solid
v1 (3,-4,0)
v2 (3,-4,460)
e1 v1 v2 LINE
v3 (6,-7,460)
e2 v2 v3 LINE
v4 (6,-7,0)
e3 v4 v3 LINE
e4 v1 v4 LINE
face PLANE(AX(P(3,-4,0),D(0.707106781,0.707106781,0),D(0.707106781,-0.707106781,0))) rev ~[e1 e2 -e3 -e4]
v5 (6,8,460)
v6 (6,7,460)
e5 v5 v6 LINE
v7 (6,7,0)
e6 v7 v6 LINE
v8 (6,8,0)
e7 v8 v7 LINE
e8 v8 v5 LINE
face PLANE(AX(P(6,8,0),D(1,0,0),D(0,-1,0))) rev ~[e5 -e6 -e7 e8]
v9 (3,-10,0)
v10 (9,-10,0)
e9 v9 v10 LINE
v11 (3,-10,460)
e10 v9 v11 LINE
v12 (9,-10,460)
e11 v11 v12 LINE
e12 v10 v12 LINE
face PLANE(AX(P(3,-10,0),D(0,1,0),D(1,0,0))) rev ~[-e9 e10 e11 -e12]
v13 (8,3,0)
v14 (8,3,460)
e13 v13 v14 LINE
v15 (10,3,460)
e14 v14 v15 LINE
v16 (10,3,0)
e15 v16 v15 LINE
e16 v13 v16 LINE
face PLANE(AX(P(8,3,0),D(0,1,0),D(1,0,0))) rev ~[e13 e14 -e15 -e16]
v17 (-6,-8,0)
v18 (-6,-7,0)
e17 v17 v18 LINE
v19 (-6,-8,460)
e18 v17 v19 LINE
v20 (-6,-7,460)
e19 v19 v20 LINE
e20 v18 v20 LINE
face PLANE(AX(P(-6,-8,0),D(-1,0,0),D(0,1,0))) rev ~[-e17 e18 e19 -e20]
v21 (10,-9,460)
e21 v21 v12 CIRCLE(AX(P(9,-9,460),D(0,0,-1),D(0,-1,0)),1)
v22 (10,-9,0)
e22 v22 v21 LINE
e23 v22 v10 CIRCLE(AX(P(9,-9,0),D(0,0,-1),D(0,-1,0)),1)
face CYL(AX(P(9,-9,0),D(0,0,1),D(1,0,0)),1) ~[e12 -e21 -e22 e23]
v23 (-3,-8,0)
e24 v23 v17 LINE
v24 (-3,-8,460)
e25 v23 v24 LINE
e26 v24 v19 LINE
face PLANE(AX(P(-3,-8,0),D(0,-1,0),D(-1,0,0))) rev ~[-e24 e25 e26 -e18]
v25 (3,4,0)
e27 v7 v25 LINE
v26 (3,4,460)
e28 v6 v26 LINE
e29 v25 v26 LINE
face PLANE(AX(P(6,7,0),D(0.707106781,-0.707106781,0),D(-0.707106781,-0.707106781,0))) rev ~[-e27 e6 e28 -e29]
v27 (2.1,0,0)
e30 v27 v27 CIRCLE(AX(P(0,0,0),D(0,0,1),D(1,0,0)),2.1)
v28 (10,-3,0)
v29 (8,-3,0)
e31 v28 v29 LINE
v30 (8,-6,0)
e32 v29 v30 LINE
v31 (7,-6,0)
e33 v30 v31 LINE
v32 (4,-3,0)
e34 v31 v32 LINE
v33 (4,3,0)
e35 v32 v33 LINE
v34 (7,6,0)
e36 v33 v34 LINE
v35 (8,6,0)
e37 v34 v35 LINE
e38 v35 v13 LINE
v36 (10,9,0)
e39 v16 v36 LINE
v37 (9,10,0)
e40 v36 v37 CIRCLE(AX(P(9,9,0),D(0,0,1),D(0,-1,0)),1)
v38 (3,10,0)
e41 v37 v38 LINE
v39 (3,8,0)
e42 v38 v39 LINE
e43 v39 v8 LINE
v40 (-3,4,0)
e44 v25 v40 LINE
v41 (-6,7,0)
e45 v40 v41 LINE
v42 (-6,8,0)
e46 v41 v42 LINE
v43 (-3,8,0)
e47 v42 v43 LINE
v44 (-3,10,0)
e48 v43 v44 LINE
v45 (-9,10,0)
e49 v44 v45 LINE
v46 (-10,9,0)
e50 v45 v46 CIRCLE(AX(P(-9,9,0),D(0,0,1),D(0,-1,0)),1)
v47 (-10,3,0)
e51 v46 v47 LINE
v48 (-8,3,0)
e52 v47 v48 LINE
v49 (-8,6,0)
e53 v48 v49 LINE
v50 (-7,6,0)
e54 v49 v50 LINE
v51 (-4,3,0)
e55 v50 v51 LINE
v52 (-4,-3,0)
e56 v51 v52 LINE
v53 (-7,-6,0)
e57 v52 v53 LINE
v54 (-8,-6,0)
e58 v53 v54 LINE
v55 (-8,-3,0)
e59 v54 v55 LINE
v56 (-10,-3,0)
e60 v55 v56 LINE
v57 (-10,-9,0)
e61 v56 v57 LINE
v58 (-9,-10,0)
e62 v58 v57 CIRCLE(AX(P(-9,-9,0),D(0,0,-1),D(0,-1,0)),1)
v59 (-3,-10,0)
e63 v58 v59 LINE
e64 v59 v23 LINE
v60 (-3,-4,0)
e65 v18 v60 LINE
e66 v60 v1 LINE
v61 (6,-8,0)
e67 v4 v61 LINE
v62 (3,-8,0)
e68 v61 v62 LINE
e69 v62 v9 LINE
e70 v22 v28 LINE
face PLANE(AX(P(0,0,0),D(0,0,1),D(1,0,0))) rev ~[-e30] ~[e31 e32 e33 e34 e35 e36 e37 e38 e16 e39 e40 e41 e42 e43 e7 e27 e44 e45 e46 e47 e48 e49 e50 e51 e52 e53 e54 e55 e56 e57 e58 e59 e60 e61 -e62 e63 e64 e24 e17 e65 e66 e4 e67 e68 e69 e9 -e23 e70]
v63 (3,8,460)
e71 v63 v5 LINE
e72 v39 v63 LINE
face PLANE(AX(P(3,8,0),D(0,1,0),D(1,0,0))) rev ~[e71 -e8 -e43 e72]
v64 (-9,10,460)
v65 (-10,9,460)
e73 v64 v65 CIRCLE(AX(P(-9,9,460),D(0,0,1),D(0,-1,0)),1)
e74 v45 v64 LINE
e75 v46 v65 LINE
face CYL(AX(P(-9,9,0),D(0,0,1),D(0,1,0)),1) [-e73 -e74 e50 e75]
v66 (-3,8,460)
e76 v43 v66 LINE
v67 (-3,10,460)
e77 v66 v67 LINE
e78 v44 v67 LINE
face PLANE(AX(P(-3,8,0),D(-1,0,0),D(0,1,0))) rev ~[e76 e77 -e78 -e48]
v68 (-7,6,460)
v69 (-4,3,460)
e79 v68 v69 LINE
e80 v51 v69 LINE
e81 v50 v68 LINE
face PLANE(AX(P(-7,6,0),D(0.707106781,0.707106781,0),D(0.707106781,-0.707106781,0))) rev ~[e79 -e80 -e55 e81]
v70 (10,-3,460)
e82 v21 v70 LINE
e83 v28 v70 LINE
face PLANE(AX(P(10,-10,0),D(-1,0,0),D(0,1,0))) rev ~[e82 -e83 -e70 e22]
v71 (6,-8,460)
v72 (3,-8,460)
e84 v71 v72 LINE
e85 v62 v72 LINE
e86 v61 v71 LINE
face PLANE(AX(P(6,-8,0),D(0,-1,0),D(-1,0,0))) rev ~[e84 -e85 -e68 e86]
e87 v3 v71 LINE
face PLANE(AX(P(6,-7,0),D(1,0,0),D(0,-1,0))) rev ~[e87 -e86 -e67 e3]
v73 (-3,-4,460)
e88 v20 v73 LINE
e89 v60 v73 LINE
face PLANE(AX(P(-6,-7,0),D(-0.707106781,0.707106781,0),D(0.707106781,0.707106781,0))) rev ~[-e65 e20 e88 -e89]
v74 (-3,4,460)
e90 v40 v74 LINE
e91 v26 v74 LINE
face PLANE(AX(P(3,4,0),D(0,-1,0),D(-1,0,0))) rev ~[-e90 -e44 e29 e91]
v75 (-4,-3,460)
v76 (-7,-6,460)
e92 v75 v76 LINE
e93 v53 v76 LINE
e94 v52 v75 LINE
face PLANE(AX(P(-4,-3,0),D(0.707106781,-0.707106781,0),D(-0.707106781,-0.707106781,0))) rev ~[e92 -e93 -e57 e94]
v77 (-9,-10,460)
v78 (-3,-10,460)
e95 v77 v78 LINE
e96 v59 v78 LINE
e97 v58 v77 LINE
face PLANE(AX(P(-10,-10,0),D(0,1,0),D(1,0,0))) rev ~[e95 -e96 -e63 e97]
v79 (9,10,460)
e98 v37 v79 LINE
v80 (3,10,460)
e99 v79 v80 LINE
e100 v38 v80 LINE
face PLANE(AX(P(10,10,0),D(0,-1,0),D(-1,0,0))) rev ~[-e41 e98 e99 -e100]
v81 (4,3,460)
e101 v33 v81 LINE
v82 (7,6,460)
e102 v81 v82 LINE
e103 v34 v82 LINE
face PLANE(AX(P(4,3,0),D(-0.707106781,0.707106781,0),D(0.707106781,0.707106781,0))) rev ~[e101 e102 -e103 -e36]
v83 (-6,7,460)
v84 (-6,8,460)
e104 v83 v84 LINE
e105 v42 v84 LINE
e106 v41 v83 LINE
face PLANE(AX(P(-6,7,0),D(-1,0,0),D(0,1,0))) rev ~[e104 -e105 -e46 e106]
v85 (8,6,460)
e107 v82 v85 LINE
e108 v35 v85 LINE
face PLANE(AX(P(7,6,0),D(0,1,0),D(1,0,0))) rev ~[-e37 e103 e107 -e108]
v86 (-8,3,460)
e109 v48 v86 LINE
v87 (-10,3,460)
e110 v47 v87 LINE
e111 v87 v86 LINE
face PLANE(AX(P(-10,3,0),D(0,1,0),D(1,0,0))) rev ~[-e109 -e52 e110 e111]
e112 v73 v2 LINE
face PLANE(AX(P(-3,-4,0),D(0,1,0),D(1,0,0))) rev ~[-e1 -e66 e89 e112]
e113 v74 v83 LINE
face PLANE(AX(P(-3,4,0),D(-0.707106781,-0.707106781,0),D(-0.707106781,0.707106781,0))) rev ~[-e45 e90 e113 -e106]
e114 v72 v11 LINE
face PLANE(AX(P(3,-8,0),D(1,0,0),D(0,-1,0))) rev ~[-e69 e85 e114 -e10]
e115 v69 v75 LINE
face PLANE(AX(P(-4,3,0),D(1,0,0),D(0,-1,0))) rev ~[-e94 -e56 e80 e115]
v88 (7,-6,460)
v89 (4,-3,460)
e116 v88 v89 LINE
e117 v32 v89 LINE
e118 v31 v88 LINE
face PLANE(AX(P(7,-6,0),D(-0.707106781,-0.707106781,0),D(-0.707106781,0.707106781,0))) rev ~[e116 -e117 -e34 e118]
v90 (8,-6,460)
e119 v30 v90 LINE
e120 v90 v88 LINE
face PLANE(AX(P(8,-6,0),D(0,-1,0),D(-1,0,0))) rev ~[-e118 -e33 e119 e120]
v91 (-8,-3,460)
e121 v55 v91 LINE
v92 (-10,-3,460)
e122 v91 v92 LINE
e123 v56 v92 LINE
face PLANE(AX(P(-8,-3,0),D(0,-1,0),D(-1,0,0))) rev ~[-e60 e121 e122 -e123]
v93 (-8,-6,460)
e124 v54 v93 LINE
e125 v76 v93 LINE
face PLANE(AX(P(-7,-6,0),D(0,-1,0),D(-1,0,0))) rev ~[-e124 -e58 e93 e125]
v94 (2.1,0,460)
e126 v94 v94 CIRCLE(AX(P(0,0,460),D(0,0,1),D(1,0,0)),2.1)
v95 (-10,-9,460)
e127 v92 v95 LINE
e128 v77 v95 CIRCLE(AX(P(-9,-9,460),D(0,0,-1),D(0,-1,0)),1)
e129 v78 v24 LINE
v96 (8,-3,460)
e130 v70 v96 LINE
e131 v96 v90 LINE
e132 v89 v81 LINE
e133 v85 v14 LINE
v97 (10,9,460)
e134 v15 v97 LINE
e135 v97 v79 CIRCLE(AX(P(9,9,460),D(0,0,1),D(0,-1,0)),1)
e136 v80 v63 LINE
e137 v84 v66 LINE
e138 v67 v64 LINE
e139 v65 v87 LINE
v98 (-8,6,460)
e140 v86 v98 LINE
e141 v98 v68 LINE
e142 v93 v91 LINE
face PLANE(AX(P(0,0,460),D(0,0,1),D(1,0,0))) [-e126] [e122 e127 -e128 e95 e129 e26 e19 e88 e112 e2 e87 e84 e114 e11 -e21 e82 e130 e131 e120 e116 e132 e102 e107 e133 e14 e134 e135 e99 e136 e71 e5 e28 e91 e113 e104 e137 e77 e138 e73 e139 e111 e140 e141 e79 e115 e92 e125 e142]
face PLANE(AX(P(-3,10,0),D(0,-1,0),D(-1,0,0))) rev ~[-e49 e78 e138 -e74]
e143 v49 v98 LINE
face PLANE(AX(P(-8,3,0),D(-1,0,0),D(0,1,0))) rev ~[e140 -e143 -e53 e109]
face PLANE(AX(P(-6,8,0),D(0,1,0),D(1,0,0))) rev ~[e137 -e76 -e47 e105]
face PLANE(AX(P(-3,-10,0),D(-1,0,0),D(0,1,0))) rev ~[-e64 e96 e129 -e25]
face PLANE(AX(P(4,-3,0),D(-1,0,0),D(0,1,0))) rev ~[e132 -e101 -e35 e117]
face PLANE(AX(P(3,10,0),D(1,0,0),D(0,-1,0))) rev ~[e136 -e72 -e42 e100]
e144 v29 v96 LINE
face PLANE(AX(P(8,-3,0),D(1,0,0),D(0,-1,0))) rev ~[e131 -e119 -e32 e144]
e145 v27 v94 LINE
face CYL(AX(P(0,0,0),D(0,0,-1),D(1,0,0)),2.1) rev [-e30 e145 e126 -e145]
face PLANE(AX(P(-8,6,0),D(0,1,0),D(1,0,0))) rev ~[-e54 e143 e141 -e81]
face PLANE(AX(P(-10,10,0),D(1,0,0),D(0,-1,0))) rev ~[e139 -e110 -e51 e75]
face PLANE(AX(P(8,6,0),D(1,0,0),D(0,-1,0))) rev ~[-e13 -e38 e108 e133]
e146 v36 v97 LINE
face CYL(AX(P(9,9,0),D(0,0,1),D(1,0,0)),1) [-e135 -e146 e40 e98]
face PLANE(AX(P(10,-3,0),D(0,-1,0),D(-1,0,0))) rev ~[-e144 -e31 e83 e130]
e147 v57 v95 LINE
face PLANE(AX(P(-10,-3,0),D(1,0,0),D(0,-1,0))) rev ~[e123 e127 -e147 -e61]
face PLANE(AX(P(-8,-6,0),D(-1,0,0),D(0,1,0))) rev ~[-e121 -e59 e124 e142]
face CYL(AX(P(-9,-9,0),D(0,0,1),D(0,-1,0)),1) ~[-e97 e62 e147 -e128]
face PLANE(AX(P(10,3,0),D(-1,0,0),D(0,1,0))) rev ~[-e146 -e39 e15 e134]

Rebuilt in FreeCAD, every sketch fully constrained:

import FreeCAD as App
import Part
import Sketcher


def edges_at(feature, points):
    """Names of the edges that pass closest to the given points."""
    edges = feature.Shape.Edges
    near = lambda p: min(range(len(edges)), key=lambda i: edges[i].distToShape(Part.Vertex(*p))[0])
    return sorted({f"Edge{near(p) + 1}" for p in points})


def add_polygon(sketch, points):
    """Adds a closed chain of lines whose ends are joined by coincident constraints."""
    first, n = sketch.GeometryCount, len(points)
    for a, b in zip(points, points[1:] + points[:1]):
        sketch.addGeometry(Part.LineSegment(App.Vector(*a, 0), App.Vector(*b, 0)), False)
    for i in range(n):
        sketch.addConstraint(Sketcher.Constraint("Coincident", first + i, 2, first + (i + 1) % n, 1))

doc = App.newDocument("Part")
body = doc.addObject("PartDesign::Body", "Body")

# Sketch on XY plane
sketch1 = doc.addObject("Sketcher::SketchObject", "Sketch")
body.addObject(sketch1)
sketch1.AttachmentSupport = (doc.XY_Plane, [""])
sketch1.MapMode = "FlatFace"
add_polygon(sketch1, [(10, 3), (10, 10), (3, 10), (3, 8), (6, 8), (6, 7), (3, 4), (-3, 4), (-6, 7), (-6, 8), (-3, 8), (-3, 10), (-10, 10), (-10, 3), (-8, 3), (-8, 6), (-7, 6), (-4, 3), (-4, -3), (-7, -6), (-8, -6), (-8, -3), (-10, -3), (-10, -10), (-3, -10), (-3, -8), (-6, -8), (-6, -7), (-3, -4), (3, -4), (6, -7), (6, -8), (3, -8), (3, -10), (10, -10), (10, -3), (8, -3), (8, -6), (7, -6), (4, -3), (4, 3), (7, 6), (8, 6), (8, 3)])  # lines 0-43
sketch1.addGeometry(Part.Circle(App.Vector(0, 0, 0), App.Vector(0, 0, 1), 2.1), False)  # 44
sketch1.addConstraint([
    Sketcher.Constraint("Vertical", 0),
    Sketcher.Constraint("Horizontal", 1),
    Sketcher.Constraint("Vertical", 2),
    Sketcher.Constraint("Horizontal", 3),
    Sketcher.Constraint("Vertical", 4),
    Sketcher.Constraint("Horizontal", 6),
    Sketcher.Constraint("Vertical", 8),
    Sketcher.Constraint("Horizontal", 9),
    Sketcher.Constraint("Vertical", 10),
    Sketcher.Constraint("Horizontal", 11),
    Sketcher.Constraint("Vertical", 12),
    Sketcher.Constraint("Horizontal", 13),
    Sketcher.Constraint("Vertical", 14),
    Sketcher.Constraint("Horizontal", 15),
    Sketcher.Constraint("Vertical", 17),
    Sketcher.Constraint("Horizontal", 19),
    Sketcher.Constraint("Vertical", 20),
    Sketcher.Constraint("Horizontal", 21),
    Sketcher.Constraint("Vertical", 22),
    Sketcher.Constraint("Horizontal", 23),
    Sketcher.Constraint("Vertical", 24),
    Sketcher.Constraint("Horizontal", 25),
    Sketcher.Constraint("Vertical", 26),
    Sketcher.Constraint("Horizontal", 28),
    Sketcher.Constraint("Vertical", 30),
    Sketcher.Constraint("Horizontal", 31),
    Sketcher.Constraint("Vertical", 32),
    Sketcher.Constraint("Horizontal", 33),
    Sketcher.Constraint("Vertical", 34),
    Sketcher.Constraint("Horizontal", 35),
    Sketcher.Constraint("Vertical", 36),
    Sketcher.Constraint("Horizontal", 37),
    Sketcher.Constraint("Vertical", 39),
    Sketcher.Constraint("Horizontal", 41),
    Sketcher.Constraint("Vertical", 42),
    Sketcher.Constraint("Horizontal", 43),
    Sketcher.Constraint("Coincident", 44, 3, -1, 1),
    Sketcher.Constraint("Symmetric", 0, 2, 22, 2, -1, 1),
    Sketcher.Constraint("Symmetric", 2, 2, 24, 2, -1, 1),
    Sketcher.Constraint("Symmetric", 4, 2, 26, 2, -1, 1),
    Sketcher.Constraint("Symmetric", 5, 2, 27, 2, -1, 1),
    Sketcher.Constraint("Symmetric", 7, 2, 29, 2, -1, 1),
    Sketcher.Constraint("Symmetric", 9, 2, 31, 2, -1, 1),
    Sketcher.Constraint("Symmetric", 11, 2, 33, 2, -1, 1),
    Sketcher.Constraint("Symmetric", 13, 2, 35, 2, -1, 1),
    Sketcher.Constraint("Symmetric", 15, 2, 37, 2, -1, 1),
    Sketcher.Constraint("Symmetric", 16, 2, 38, 2, -1, 1),
    Sketcher.Constraint("Symmetric", 18, 2, 40, 2, -1, 1),
    Sketcher.Constraint("Symmetric", 20, 2, 42, 2, -1, 1),
    Sketcher.Constraint("Symmetric", 4, 2, 7, 2, -2),
    Sketcher.Constraint("Symmetric", 2, 2, 9, 2, -2),
    Sketcher.Constraint("Symmetric", 0, 2, 11, 2, -2),
    Sketcher.Constraint("Symmetric", 20, 2, 35, 2, -2),
    Sketcher.Constraint("Symmetric", 18, 2, 37, 2, -2),
    Sketcher.Constraint("Perpendicular", 5, 7),
    Sketcher.Constraint("Parallel", 7, 16),
    Sketcher.Constraint("Perpendicular", 16, 18),
    Sketcher.Constraint("Perpendicular", 27, 29),
    Sketcher.Constraint("Perpendicular", 38, 40),
    Sketcher.Constraint("Horizontal", 13, 2, 16, 2),
    Sketcher.Constraint("Horizontal", 17, 2, 20, 2),
    Sketcher.Constraint("Vertical", 2, 2, 5, 2),
    Sketcher.Constraint("Equal", 33, 0),
    Sketcher.Constraint("Equal", 43, 2),
    Sketcher.Constraint("Equal", 41, 4),
    Sketcher.Constraint("Equal", 31, 14),
    Sketcher.Constraint("Equal", 28, 17),
    Sketcher.Constraint("Diameter", 44, 4.2),
    Sketcher.Constraint("DistanceX", 1, 2, 1, 1, 7.0),
    Sketcher.Constraint("DistanceX", 3, 1, 3, 2, 3.0),
    Sketcher.Constraint("DistanceX", 6, 2, 6, 1, 6.0),
    Sketcher.Constraint("DistanceX", 13, 1, 13, 2, 2.0),
    Sketcher.Constraint("DistanceX", 15, 1, 15, 2, 1.0),
])
pad1 = doc.addObject("PartDesign::Pad", "Pad")
body.addObject(pad1)
pad1.Profile = sketch1
pad1.Length = 460
doc.recompute()

fillet = doc.addObject("PartDesign::Fillet", "Fillet")
body.addObject(fillet)
fillet.Base = (pad1, edges_at(pad1, [
    (-10, 10, 230),
    (10, 10, 230),
    (10, -10, 230),
    (-10, -10, 230),
]))
fillet.Radius = 1

doc.recompute()
